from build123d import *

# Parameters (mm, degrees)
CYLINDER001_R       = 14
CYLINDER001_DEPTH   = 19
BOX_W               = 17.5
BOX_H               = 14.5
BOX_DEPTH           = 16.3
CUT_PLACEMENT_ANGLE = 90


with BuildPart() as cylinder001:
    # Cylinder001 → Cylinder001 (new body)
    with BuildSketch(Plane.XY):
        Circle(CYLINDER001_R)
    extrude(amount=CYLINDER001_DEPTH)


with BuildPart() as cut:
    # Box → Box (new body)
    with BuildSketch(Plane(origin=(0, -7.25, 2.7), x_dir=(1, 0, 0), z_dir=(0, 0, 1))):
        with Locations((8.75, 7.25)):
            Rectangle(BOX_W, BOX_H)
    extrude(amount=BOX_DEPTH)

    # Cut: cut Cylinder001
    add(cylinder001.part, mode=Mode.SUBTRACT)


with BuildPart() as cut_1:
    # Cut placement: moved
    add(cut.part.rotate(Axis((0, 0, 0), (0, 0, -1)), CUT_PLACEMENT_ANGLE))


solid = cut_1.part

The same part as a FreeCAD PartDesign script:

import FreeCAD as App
import Part
import Sketcher
from FreeCAD import Vector

doc = App.newDocument("Part")
body = doc.addObject("PartDesign::Body", "Body")

sketch1 = body.newObject("Sketcher::SketchObject", "Sketch")
sketch1.AttachmentSupport = (doc.getObject("XY_Plane"), [""])
sketch1.MapMode = "FlatFace"
sketch1.addGeometry(Part.Circle(Vector(0, 0, 0), Vector(0, 0, 1), 14), False)
sketch1.addConstraint(Sketcher.Constraint("Coincident", 0, 3, -1, 1))
sketch1.addConstraint(Sketcher.Constraint("Diameter", 0, 28.0))
pad1 = body.newObject("PartDesign::Pad", "Pad")
pad1.Profile = sketch1
pad1.Length = 19
body2 = doc.addObject("PartDesign::Body", "Body001")

sketch2 = body2.newObject("Sketcher::SketchObject", "Sketch001")
sketch2.AttachmentSupport = (doc.getObject("XY_Plane001"), [""])
sketch2.MapMode = "FlatFace"
sketch2.AttachmentOffset = App.Placement(Vector(0, 0, 2.7), App.Rotation())
sketch2.addGeometry(Part.LineSegment(Vector(0, 7, 0), Vector(0, -7, 0)), False)
sketch2.addGeometry(Part.LineSegment(Vector(0, -7, 0), Vector(18, -7, 0)), False)
sketch2.addGeometry(Part.LineSegment(Vector(18, -7, 0), Vector(18, 7, 0)), False)
sketch2.addGeometry(Part.LineSegment(Vector(18, 7, 0), Vector(0, 7, 0)), False)
sketch2.addConstraint(Sketcher.Constraint("Coincident", 0, 2, 1, 1))
sketch2.addConstraint(Sketcher.Constraint("Coincident", 1, 2, 2, 1))
sketch2.addConstraint(Sketcher.Constraint("Coincident", 2, 2, 3, 1))
sketch2.addConstraint(Sketcher.Constraint("Coincident", 3, 2, 0, 1))
sketch2.addConstraint(Sketcher.Constraint("Vertical", 0))
sketch2.addConstraint(Sketcher.Constraint("Horizontal", 1))
sketch2.addConstraint(Sketcher.Constraint("Vertical", 2))
sketch2.addConstraint(Sketcher.Constraint("Horizontal", 3))
sketch2.addConstraint(Sketcher.Constraint("Symmetric", 0, 2, 3, 2, -1, 1))
sketch2.addConstraint(Sketcher.Constraint("DistanceX", 1, 1, 1, 2, 17.5))
sketch2.addConstraint(Sketcher.Constraint("DistanceY", 0, 2, 0, 1, 14.5))
pad2 = body2.newObject("PartDesign::Pad", "Pad001")
pad2.Profile = sketch2
pad2.Length = 16.3
doc.recompute()

boolean = body2.newObject("PartDesign::Boolean", "Boolean")
boolean.Type = "Cut"
boolean.addObjects([body])
body3 = doc.addObject("PartDesign::Body", "Body002")
doc.recompute()

body2.Placement = App.Placement(Vector(0, 0, 0), App.Rotation(Vector(0, 0, -1), 90))
boolean2 = body3.newObject("PartDesign::Boolean", "Boolean001")
boolean2.Type = "Fuse"
boolean2.addObjects([body2])

doc.recompute()
